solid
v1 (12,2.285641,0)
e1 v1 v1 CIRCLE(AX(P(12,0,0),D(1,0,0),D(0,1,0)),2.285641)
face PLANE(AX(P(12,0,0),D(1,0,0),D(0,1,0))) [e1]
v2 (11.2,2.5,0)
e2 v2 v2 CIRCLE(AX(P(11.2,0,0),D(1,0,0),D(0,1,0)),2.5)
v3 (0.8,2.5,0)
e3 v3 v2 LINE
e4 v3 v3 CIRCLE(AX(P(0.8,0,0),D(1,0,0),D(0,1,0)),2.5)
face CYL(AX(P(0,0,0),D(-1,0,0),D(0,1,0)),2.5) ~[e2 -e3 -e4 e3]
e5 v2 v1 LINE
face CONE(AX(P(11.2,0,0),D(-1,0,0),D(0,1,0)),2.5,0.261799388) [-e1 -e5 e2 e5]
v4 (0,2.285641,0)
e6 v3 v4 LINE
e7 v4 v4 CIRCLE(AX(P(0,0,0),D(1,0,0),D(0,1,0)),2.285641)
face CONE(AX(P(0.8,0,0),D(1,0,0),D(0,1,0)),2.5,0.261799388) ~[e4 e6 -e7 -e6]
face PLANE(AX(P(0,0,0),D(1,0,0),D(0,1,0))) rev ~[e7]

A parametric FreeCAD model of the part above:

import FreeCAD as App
import Part
import Sketcher
from FreeCAD import Vector


def edges_at(feature, points):
    """Names of the edges that pass closest to the given points."""
    edges = feature.Shape.Edges
    near = lambda p: min(range(len(edges)), key=lambda i: edges[i].distToShape(Part.Vertex(*p))[0])
    return sorted({f"Edge{near(p) + 1}" for p in points})

doc = App.newDocument("Part")
body = doc.addObject("PartDesign::Body", "Body")

# Sketch on YZ plane
sketch1 = body.newObject("Sketcher::SketchObject", "Sketch")
sketch1.AttachmentSupport = (doc.getObject("YZ_Plane"), [""])
sketch1.MapMode = "FlatFace"
sketch1.addGeometry(Part.Circle(Vector(0, 0, 0), Vector(0, 0, 1), 2.5), False)
sketch1.addConstraint([
    Sketcher.Constraint("Coincident", 0, 3, -1, 1),
    Sketcher.Constraint("Diameter", 0, 5.0),
])
pad1 = body.newObject("PartDesign::Pad", "Pad")
pad1.Profile = sketch1
pad1.Length = 12
doc.recompute()

chamfer = body.newObject("PartDesign::Chamfer", "Chamfer")
chamfer.Base = (pad1, edges_at(pad1, [(0, -2.5, 0)]))
chamfer.ChamferType = "Distance and Angle"
chamfer.Size = 0.8
chamfer.Angle = 15
doc.recompute()

chamfer2 = body.newObject("PartDesign::Chamfer", "Chamfer001")
chamfer2.Base = (chamfer, edges_at(chamfer, [(12, -2.5, 0)]))
chamfer2.ChamferType = "Distance and Angle"
chamfer2.Size = 0.8
chamfer2.Angle = 15

doc.recompute()
